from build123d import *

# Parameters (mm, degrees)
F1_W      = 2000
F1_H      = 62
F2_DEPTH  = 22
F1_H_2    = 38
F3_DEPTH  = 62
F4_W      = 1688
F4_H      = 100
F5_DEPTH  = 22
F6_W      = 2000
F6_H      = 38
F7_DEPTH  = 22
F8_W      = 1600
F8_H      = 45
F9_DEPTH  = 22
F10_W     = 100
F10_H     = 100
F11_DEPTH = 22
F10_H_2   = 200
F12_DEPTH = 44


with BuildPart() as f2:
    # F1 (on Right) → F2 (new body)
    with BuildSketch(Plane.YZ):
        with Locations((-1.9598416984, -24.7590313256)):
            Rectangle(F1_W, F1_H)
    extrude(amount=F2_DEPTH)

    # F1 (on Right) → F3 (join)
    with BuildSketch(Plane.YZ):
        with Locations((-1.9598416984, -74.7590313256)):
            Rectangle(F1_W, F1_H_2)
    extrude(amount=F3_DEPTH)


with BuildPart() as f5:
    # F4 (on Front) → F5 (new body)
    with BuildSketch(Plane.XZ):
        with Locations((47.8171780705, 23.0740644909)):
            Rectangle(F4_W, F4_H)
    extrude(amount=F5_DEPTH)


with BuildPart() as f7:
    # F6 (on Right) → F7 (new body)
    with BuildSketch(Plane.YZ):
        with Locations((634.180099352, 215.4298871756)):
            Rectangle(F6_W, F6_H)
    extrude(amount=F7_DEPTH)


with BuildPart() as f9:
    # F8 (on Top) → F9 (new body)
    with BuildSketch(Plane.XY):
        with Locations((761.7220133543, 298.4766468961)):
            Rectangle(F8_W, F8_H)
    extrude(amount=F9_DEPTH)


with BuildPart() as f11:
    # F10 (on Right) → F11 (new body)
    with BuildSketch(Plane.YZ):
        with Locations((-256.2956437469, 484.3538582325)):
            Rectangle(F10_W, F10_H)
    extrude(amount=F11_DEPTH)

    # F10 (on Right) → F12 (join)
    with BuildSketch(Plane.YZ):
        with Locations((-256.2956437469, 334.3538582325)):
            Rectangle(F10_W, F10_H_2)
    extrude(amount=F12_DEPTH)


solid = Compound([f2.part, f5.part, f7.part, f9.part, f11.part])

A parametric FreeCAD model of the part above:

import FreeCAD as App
import Part
import Sketcher
from FreeCAD import Vector

doc = App.newDocument("Part")
params = doc.addObject("Spreadsheet::Sheet", "Params")
for row, (alias, value) in enumerate([
    ("sketch1_width", "2000 mm"),
    ("sketch1_height", "62 mm"),
    ("pad1_length", "22 mm"),
    ("sketch2_width", "2000 mm"),
    ("sketch2_height", "38 mm"),
    ("pad2_length", "62 mm"),
    ("sketch3_width", "1688 mm"),
    ("sketch3_height", "100 mm"),
    ("pad3_length", "22 mm"),
    ("sketch4_width", "2000 mm"),
    ("sketch4_height", "38 mm"),
    ("pad4_length", "22 mm"),
    ("sketch5_width", "1600 mm"),
    ("sketch5_height", "45 mm"),
    ("pad5_length", "22 mm"),
    ("sketch6_width", "100 mm"),
    ("pad6_length", "22 mm"),
    ("sketch7_width", "100 mm"),
    ("sketch7_height", "200 mm"),
    ("pad7_length", "44 mm"),
], start=1):
    params.set(f"A{row}", alias)
    params.set(f"B{row}", "=" + value)
    params.setAlias(f"B{row}", alias)

body = doc.addObject("PartDesign::Body", "Body")

# Sketch on YZ plane
sketch1 = body.newObject("Sketcher::SketchObject", "Sketch")
sketch1.AttachmentSupport = (doc.getObject("YZ_Plane"), [""])
sketch1.MapMode = "FlatFace"
sketch1.addGeometry(Part.LineSegment(Vector(-1002, 6, 0), Vector(-1002, -56, 0)), False)
sketch1.addGeometry(Part.LineSegment(Vector(-1002, -56, 0), Vector(998, -56, 0)), False)
sketch1.addGeometry(Part.LineSegment(Vector(998, -56, 0), Vector(998, 6, 0)), False)
sketch1.addGeometry(Part.LineSegment(Vector(998, 6, 0), Vector(-1002, 6, 0)), False)
sketch1.addConstraint(Sketcher.Constraint("Coincident", 0, 2, 1, 1))
sketch1.addConstraint(Sketcher.Constraint("Coincident", 1, 2, 2, 1))
sketch1.addConstraint(Sketcher.Constraint("Coincident", 2, 2, 3, 1))
sketch1.addConstraint(Sketcher.Constraint("Coincident", 3, 2, 0, 1))
sketch1.addConstraint(Sketcher.Constraint("Vertical", 0))
sketch1.addConstraint(Sketcher.Constraint("Horizontal", 1))
sketch1.addConstraint(Sketcher.Constraint("Vertical", 2))
sketch1.addConstraint(Sketcher.Constraint("Horizontal", 3))
sketch1.addConstraint(Sketcher.Constraint("DistanceX", 1, 1, 1, 2, 2000.0))
sketch1.addConstraint(Sketcher.Constraint("DistanceY", 0, 2, 0, 1, 62.0))
sketch1.addConstraint(Sketcher.Constraint("DistanceX", 0, 2, -1, 1, 1001.959842))
sketch1.addConstraint(Sketcher.Constraint("DistanceY", 0, 2, -1, 1, 55.759031))
sketch1.setExpression("Constraints[8]", "Params.sketch1_width")
sketch1.setExpression("Constraints[9]", "Params.sketch1_height")
pad1 = body.newObject("PartDesign::Pad", "Pad")
pad1.Profile = sketch1
pad1.setExpression("Length", "Params.pad1_length")

# Sketch on YZ plane
sketch2 = body.newObject("Sketcher::SketchObject", "Sketch001")
sketch2.AttachmentSupport = (doc.getObject("YZ_Plane"), [""])
sketch2.MapMode = "FlatFace"
sketch2.addGeometry(Part.LineSegment(Vector(-1002, -56, 0), Vector(-1002, -94, 0)), False)
sketch2.addGeometry(Part.LineSegment(Vector(-1002, -94, 0), Vector(998, -94, 0)), False)
sketch2.addGeometry(Part.LineSegment(Vector(998, -94, 0), Vector(998, -56, 0)), False)
sketch2.addGeometry(Part.LineSegment(Vector(998, -56, 0), Vector(-1002, -56, 0)), False)
sketch2.addConstraint(Sketcher.Constraint("Coincident", 0, 2, 1, 1))
sketch2.addConstraint(Sketcher.Constraint("Coincident", 1, 2, 2, 1))
sketch2.addConstraint(Sketcher.Constraint("Coincident", 2, 2, 3, 1))
sketch2.addConstraint(Sketcher.Constraint("Coincident", 3, 2, 0, 1))
sketch2.addConstraint(Sketcher.Constraint("Vertical", 0))
sketch2.addConstraint(Sketcher.Constraint("Horizontal", 1))
sketch2.addConstraint(Sketcher.Constraint("Vertical", 2))
sketch2.addConstraint(Sketcher.Constraint("Horizontal", 3))
sketch2.addConstraint(Sketcher.Constraint("DistanceX", 1, 1, 1, 2, 2000.0))
sketch2.addConstraint(Sketcher.Constraint("DistanceY", 0, 2, 0, 1, 38.0))
sketch2.addConstraint(Sketcher.Constraint("DistanceX", 0, 2, -1, 1, 1001.959842))
sketch2.addConstraint(Sketcher.Constraint("DistanceY", 0, 2, -1, 1, 93.759031))
sketch2.setExpression("Constraints[8]", "Params.sketch2_width")
sketch2.setExpression("Constraints[9]", "Params.sketch2_height")
pad2 = body.newObject("PartDesign::Pad", "Pad001")
pad2.Profile = sketch2
pad2.setExpression("Length", "Params.pad2_length")
body2 = doc.addObject("PartDesign::Body", "Body001")

# Sketch on XZ plane
sketch3 = body2.newObject("Sketcher::SketchObject", "Sketch002")
sketch3.AttachmentSupport = (doc.getObject("XZ_Plane001"), [""])
sketch3.MapMode = "FlatFace"
sketch3.addGeometry(Part.LineSegment(Vector(-796, 73, 0), Vector(-796, -27, 0)), False)
sketch3.addGeometry(Part.LineSegment(Vector(-796, -27, 0), Vector(892, -27, 0)), False)
sketch3.addGeometry(Part.LineSegment(Vector(892, -27, 0), Vector(892, 73, 0)), False)
sketch3.addGeometry(Part.LineSegment(Vector(892, 73, 0), Vector(-796, 73, 0)), False)
sketch3.addConstraint(Sketcher.Constraint("Coincident", 0, 2, 1, 1))
sketch3.addConstraint(Sketcher.Constraint("Coincident", 1, 2, 2, 1))
sketch3.addConstraint(Sketcher.Constraint("Coincident", 2, 2, 3, 1))
sketch3.addConstraint(Sketcher.Constraint("Coincident", 3, 2, 0, 1))
sketch3.addConstraint(Sketcher.Constraint("Vertical", 0))
sketch3.addConstraint(Sketcher.Constraint("Horizontal", 1))
sketch3.addConstraint(Sketcher.Constraint("Vertical", 2))
sketch3.addConstraint(Sketcher.Constraint("Horizontal", 3))
sketch3.addConstraint(Sketcher.Constraint("DistanceX", 1, 1, 1, 2, 1688.0))
sketch3.addConstraint(Sketcher.Constraint("DistanceY", 0, 2, 0, 1, 100.0))
sketch3.addConstraint(Sketcher.Constraint("DistanceX", 0, 2, -1, 1, 796.182822))
sketch3.addConstraint(Sketcher.Constraint("DistanceY", 0, 2, -1, 1, 26.925936))
sketch3.setExpression("Constraints[8]", "Params.sketch3_width")
sketch3.setExpression("Constraints[9]", "Params.sketch3_height")
pad3 = body2.newObject("PartDesign::Pad", "Pad002")
pad3.Profile = sketch3
pad3.setExpression("Length", "Params.pad3_length")
body3 = doc.addObject("PartDesign::Body", "Body002")

# Sketch on YZ plane
sketch4 = body3.newObject("Sketcher::SketchObject", "Sketch003")
sketch4.AttachmentSupport = (doc.getObject("YZ_Plane002"), [""])
sketch4.MapMode = "FlatFace"
sketch4.addGeometry(Part.LineSegment(Vector(-366, 234, 0), Vector(-366, 196, 0)), False)
sketch4.addGeometry(Part.LineSegment(Vector(-366, 196, 0), Vector(1634, 196, 0)), False)
sketch4.addGeometry(Part.LineSegment(Vector(1634, 196, 0), Vector(1634, 234, 0)), False)
sketch4.addGeometry(Part.LineSegment(Vector(1634, 234, 0), Vector(-366, 234, 0)), False)
sketch4.addConstraint(Sketcher.Constraint("Coincident", 0, 2, 1, 1))
sketch4.addConstraint(Sketcher.Constraint("Coincident", 1, 2, 2, 1))
sketch4.addConstraint(Sketcher.Constraint("Coincident", 2, 2, 3, 1))
sketch4.addConstraint(Sketcher.Constraint("Coincident", 3, 2, 0, 1))
sketch4.addConstraint(Sketcher.Constraint("Vertical", 0))
sketch4.addConstraint(Sketcher.Constraint("Horizontal", 1))
sketch4.addConstraint(Sketcher.Constraint("Vertical", 2))
sketch4.addConstraint(Sketcher.Constraint("Horizontal", 3))
sketch4.addConstraint(Sketcher.Constraint("DistanceX", 1, 1, 1, 2, 2000.0))
sketch4.addConstraint(Sketcher.Constraint("DistanceY", 0, 2, 0, 1, 38.0))
sketch4.addConstraint(Sketcher.Constraint("DistanceX", 0, 2, -1, 1, 365.819901))
sketch4.addConstraint(Sketcher.Constraint("DistanceY", -1, 1, 0, 2, 196.429887))
sketch4.setExpression("Constraints[8]", "Params.sketch4_width")
sketch4.setExpression("Constraints[9]", "Params.sketch4_height")
pad4 = body3.newObject("PartDesign::Pad", "Pad003")
pad4.Profile = sketch4
pad4.setExpression("Length", "Params.pad4_length")
body4 = doc.addObject("PartDesign::Body", "Body003")

# Sketch on XY plane
sketch5 = body4.newObject("Sketcher::SketchObject", "Sketch004")
sketch5.AttachmentSupport = (doc.getObject("XY_Plane003"), [""])
sketch5.MapMode = "FlatFace"
sketch5.addGeometry(Part.LineSegment(Vector(-38, 321, 0), Vector(-38, 276, 0)), False)
sketch5.addGeometry(Part.LineSegment(Vector(-38, 276, 0), Vector(1562, 276, 0)), False)
sketch5.addGeometry(Part.LineSegment(Vector(1562, 276, 0), Vector(1562, 321, 0)), False)
sketch5.addGeometry(Part.LineSegment(Vector(1562, 321, 0), Vector(-38, 321, 0)), False)
sketch5.addConstraint(Sketcher.Constraint("Coincident", 0, 2, 1, 1))
sketch5.addConstraint(Sketcher.Constraint("Coincident", 1, 2, 2, 1))
sketch5.addConstraint(Sketcher.Constraint("Coincident", 2, 2, 3, 1))
sketch5.addConstraint(Sketcher.Constraint("Coincident", 3, 2, 0, 1))
sketch5.addConstraint(Sketcher.Constraint("Vertical", 0))
sketch5.addConstraint(Sketcher.Constraint("Horizontal", 1))
sketch5.addConstraint(Sketcher.Constraint("Vertical", 2))
sketch5.addConstraint(Sketcher.Constraint("Horizontal", 3))
sketch5.addConstraint(Sketcher.Constraint("DistanceX", 1, 1, 1, 2, 1600.0))
sketch5.addConstraint(Sketcher.Constraint("DistanceY", 0, 2, 0, 1, 45.0))
sketch5.addConstraint(Sketcher.Constraint("DistanceX", 0, 2, -1, 1, 38.277987))
sketch5.addConstraint(Sketcher.Constraint("DistanceY", -1, 1, 0, 2, 275.976647))
sketch5.setExpression("Constraints[8]", "Params.sketch5_width")
sketch5.setExpression("Constraints[9]", "Params.sketch5_height")
pad5 = body4.newObject("PartDesign::Pad", "Pad004")
pad5.Profile = sketch5
pad5.setExpression("Length", "Params.pad5_length")
body5 = doc.addObject("PartDesign::Body", "Body004")

# Sketch on YZ plane
sketch6 = body5.newObject("Sketcher::SketchObject", "Sketch005")
sketch6.AttachmentSupport = (doc.getObject("YZ_Plane004"), [""])
sketch6.MapMode = "FlatFace"
sketch6.addGeometry(Part.LineSegment(Vector(-306, 534, 0), Vector(-306, 434, 0)), False)
sketch6.addGeometry(Part.LineSegment(Vector(-306, 434, 0), Vector(-206, 434, 0)), False)
sketch6.addGeometry(Part.LineSegment(Vector(-206, 434, 0), Vector(-206, 534, 0)), False)
sketch6.addGeometry(Part.LineSegment(Vector(-206, 534, 0), Vector(-306, 534, 0)), False)
sketch6.addConstraint(Sketcher.Constraint("Coincident", 0, 2, 1, 1))
sketch6.addConstraint(Sketcher.Constraint("Coincident", 1, 2, 2, 1))
sketch6.addConstraint(Sketcher.Constraint("Coincident", 2, 2, 3, 1))
sketch6.addConstraint(Sketcher.Constraint("Coincident", 3, 2, 0, 1))
sketch6.addConstraint(Sketcher.Constraint("Vertical", 0))
sketch6.addConstraint(Sketcher.Constraint("Horizontal", 1))
sketch6.addConstraint(Sketcher.Constraint("Vertical", 2))
sketch6.addConstraint(Sketcher.Constraint("Horizontal", 3))
sketch6.addConstraint(Sketcher.Constraint("Equal", 3, 0))
sketch6.addConstraint(Sketcher.Constraint("DistanceX", 1, 1, 1, 2, 100.0))
sketch6.addConstraint(Sketcher.Constraint("DistanceY", -1, 1, 0, 2, 434.353858))
sketch6.addConstraint(Sketcher.Constraint("DistanceX", 0, 2, -1, 1, 306.295644))
sketch6.setExpression("Constraints[9]", "Params.sketch6_width")
pad6 = body5.newObject("PartDesign::Pad", "Pad005")
pad6.Profile = sketch6
pad6.setExpression("Length", "Params.pad6_length")

# Sketch on YZ plane
sketch7 = body5.newObject("Sketcher::SketchObject", "Sketch006")
sketch7.AttachmentSupport = (doc.getObject("YZ_Plane004"), [""])
sketch7.MapMode = "FlatFace"
sketch7.addGeometry(Part.LineSegment(Vector(-306, 434, 0), Vector(-306, 234, 0)), False)
sketch7.addGeometry(Part.LineSegment(Vector(-306, 234, 0), Vector(-206, 234, 0)), False)
sketch7.addGeometry(Part.LineSegment(Vector(-206, 234, 0), Vector(-206, 434, 0)), False)
sketch7.addGeometry(Part.LineSegment(Vector(-206, 434, 0), Vector(-306, 434, 0)), False)
sketch7.addConstraint(Sketcher.Constraint("Coincident", 0, 2, 1, 1))
sketch7.addConstraint(Sketcher.Constraint("Coincident", 1, 2, 2, 1))
sketch7.addConstraint(Sketcher.Constraint("Coincident", 2, 2, 3, 1))
sketch7.addConstraint(Sketcher.Constraint("Coincident", 3, 2, 0, 1))
sketch7.addConstraint(Sketcher.Constraint("Vertical", 0))
sketch7.addConstraint(Sketcher.Constraint("Horizontal", 1))
sketch7.addConstraint(Sketcher.Constraint("Vertical", 2))
sketch7.addConstraint(Sketcher.Constraint("Horizontal", 3))
sketch7.addConstraint(Sketcher.Constraint("DistanceX", 1, 1, 1, 2, 100.0))
sketch7.addConstraint(Sketcher.Constraint("DistanceY", 0, 2, 0, 1, 200.0))
sketch7.addConstraint(Sketcher.Constraint("DistanceY", -1, 1, 0, 2, 234.353858))
sketch7.addConstraint(Sketcher.Constraint("DistanceX", 0, 2, -1, 1, 306.295644))
sketch7.setExpression("Constraints[8]", "Params.sketch7_width")
sketch7.setExpression("Constraints[9]", "Params.sketch7_height")
pad7 = body5.newObject("PartDesign::Pad", "Pad006")
pad7.Profile = sketch7
pad7.setExpression("Length", "Params.pad7_length")

doc.recompute()
